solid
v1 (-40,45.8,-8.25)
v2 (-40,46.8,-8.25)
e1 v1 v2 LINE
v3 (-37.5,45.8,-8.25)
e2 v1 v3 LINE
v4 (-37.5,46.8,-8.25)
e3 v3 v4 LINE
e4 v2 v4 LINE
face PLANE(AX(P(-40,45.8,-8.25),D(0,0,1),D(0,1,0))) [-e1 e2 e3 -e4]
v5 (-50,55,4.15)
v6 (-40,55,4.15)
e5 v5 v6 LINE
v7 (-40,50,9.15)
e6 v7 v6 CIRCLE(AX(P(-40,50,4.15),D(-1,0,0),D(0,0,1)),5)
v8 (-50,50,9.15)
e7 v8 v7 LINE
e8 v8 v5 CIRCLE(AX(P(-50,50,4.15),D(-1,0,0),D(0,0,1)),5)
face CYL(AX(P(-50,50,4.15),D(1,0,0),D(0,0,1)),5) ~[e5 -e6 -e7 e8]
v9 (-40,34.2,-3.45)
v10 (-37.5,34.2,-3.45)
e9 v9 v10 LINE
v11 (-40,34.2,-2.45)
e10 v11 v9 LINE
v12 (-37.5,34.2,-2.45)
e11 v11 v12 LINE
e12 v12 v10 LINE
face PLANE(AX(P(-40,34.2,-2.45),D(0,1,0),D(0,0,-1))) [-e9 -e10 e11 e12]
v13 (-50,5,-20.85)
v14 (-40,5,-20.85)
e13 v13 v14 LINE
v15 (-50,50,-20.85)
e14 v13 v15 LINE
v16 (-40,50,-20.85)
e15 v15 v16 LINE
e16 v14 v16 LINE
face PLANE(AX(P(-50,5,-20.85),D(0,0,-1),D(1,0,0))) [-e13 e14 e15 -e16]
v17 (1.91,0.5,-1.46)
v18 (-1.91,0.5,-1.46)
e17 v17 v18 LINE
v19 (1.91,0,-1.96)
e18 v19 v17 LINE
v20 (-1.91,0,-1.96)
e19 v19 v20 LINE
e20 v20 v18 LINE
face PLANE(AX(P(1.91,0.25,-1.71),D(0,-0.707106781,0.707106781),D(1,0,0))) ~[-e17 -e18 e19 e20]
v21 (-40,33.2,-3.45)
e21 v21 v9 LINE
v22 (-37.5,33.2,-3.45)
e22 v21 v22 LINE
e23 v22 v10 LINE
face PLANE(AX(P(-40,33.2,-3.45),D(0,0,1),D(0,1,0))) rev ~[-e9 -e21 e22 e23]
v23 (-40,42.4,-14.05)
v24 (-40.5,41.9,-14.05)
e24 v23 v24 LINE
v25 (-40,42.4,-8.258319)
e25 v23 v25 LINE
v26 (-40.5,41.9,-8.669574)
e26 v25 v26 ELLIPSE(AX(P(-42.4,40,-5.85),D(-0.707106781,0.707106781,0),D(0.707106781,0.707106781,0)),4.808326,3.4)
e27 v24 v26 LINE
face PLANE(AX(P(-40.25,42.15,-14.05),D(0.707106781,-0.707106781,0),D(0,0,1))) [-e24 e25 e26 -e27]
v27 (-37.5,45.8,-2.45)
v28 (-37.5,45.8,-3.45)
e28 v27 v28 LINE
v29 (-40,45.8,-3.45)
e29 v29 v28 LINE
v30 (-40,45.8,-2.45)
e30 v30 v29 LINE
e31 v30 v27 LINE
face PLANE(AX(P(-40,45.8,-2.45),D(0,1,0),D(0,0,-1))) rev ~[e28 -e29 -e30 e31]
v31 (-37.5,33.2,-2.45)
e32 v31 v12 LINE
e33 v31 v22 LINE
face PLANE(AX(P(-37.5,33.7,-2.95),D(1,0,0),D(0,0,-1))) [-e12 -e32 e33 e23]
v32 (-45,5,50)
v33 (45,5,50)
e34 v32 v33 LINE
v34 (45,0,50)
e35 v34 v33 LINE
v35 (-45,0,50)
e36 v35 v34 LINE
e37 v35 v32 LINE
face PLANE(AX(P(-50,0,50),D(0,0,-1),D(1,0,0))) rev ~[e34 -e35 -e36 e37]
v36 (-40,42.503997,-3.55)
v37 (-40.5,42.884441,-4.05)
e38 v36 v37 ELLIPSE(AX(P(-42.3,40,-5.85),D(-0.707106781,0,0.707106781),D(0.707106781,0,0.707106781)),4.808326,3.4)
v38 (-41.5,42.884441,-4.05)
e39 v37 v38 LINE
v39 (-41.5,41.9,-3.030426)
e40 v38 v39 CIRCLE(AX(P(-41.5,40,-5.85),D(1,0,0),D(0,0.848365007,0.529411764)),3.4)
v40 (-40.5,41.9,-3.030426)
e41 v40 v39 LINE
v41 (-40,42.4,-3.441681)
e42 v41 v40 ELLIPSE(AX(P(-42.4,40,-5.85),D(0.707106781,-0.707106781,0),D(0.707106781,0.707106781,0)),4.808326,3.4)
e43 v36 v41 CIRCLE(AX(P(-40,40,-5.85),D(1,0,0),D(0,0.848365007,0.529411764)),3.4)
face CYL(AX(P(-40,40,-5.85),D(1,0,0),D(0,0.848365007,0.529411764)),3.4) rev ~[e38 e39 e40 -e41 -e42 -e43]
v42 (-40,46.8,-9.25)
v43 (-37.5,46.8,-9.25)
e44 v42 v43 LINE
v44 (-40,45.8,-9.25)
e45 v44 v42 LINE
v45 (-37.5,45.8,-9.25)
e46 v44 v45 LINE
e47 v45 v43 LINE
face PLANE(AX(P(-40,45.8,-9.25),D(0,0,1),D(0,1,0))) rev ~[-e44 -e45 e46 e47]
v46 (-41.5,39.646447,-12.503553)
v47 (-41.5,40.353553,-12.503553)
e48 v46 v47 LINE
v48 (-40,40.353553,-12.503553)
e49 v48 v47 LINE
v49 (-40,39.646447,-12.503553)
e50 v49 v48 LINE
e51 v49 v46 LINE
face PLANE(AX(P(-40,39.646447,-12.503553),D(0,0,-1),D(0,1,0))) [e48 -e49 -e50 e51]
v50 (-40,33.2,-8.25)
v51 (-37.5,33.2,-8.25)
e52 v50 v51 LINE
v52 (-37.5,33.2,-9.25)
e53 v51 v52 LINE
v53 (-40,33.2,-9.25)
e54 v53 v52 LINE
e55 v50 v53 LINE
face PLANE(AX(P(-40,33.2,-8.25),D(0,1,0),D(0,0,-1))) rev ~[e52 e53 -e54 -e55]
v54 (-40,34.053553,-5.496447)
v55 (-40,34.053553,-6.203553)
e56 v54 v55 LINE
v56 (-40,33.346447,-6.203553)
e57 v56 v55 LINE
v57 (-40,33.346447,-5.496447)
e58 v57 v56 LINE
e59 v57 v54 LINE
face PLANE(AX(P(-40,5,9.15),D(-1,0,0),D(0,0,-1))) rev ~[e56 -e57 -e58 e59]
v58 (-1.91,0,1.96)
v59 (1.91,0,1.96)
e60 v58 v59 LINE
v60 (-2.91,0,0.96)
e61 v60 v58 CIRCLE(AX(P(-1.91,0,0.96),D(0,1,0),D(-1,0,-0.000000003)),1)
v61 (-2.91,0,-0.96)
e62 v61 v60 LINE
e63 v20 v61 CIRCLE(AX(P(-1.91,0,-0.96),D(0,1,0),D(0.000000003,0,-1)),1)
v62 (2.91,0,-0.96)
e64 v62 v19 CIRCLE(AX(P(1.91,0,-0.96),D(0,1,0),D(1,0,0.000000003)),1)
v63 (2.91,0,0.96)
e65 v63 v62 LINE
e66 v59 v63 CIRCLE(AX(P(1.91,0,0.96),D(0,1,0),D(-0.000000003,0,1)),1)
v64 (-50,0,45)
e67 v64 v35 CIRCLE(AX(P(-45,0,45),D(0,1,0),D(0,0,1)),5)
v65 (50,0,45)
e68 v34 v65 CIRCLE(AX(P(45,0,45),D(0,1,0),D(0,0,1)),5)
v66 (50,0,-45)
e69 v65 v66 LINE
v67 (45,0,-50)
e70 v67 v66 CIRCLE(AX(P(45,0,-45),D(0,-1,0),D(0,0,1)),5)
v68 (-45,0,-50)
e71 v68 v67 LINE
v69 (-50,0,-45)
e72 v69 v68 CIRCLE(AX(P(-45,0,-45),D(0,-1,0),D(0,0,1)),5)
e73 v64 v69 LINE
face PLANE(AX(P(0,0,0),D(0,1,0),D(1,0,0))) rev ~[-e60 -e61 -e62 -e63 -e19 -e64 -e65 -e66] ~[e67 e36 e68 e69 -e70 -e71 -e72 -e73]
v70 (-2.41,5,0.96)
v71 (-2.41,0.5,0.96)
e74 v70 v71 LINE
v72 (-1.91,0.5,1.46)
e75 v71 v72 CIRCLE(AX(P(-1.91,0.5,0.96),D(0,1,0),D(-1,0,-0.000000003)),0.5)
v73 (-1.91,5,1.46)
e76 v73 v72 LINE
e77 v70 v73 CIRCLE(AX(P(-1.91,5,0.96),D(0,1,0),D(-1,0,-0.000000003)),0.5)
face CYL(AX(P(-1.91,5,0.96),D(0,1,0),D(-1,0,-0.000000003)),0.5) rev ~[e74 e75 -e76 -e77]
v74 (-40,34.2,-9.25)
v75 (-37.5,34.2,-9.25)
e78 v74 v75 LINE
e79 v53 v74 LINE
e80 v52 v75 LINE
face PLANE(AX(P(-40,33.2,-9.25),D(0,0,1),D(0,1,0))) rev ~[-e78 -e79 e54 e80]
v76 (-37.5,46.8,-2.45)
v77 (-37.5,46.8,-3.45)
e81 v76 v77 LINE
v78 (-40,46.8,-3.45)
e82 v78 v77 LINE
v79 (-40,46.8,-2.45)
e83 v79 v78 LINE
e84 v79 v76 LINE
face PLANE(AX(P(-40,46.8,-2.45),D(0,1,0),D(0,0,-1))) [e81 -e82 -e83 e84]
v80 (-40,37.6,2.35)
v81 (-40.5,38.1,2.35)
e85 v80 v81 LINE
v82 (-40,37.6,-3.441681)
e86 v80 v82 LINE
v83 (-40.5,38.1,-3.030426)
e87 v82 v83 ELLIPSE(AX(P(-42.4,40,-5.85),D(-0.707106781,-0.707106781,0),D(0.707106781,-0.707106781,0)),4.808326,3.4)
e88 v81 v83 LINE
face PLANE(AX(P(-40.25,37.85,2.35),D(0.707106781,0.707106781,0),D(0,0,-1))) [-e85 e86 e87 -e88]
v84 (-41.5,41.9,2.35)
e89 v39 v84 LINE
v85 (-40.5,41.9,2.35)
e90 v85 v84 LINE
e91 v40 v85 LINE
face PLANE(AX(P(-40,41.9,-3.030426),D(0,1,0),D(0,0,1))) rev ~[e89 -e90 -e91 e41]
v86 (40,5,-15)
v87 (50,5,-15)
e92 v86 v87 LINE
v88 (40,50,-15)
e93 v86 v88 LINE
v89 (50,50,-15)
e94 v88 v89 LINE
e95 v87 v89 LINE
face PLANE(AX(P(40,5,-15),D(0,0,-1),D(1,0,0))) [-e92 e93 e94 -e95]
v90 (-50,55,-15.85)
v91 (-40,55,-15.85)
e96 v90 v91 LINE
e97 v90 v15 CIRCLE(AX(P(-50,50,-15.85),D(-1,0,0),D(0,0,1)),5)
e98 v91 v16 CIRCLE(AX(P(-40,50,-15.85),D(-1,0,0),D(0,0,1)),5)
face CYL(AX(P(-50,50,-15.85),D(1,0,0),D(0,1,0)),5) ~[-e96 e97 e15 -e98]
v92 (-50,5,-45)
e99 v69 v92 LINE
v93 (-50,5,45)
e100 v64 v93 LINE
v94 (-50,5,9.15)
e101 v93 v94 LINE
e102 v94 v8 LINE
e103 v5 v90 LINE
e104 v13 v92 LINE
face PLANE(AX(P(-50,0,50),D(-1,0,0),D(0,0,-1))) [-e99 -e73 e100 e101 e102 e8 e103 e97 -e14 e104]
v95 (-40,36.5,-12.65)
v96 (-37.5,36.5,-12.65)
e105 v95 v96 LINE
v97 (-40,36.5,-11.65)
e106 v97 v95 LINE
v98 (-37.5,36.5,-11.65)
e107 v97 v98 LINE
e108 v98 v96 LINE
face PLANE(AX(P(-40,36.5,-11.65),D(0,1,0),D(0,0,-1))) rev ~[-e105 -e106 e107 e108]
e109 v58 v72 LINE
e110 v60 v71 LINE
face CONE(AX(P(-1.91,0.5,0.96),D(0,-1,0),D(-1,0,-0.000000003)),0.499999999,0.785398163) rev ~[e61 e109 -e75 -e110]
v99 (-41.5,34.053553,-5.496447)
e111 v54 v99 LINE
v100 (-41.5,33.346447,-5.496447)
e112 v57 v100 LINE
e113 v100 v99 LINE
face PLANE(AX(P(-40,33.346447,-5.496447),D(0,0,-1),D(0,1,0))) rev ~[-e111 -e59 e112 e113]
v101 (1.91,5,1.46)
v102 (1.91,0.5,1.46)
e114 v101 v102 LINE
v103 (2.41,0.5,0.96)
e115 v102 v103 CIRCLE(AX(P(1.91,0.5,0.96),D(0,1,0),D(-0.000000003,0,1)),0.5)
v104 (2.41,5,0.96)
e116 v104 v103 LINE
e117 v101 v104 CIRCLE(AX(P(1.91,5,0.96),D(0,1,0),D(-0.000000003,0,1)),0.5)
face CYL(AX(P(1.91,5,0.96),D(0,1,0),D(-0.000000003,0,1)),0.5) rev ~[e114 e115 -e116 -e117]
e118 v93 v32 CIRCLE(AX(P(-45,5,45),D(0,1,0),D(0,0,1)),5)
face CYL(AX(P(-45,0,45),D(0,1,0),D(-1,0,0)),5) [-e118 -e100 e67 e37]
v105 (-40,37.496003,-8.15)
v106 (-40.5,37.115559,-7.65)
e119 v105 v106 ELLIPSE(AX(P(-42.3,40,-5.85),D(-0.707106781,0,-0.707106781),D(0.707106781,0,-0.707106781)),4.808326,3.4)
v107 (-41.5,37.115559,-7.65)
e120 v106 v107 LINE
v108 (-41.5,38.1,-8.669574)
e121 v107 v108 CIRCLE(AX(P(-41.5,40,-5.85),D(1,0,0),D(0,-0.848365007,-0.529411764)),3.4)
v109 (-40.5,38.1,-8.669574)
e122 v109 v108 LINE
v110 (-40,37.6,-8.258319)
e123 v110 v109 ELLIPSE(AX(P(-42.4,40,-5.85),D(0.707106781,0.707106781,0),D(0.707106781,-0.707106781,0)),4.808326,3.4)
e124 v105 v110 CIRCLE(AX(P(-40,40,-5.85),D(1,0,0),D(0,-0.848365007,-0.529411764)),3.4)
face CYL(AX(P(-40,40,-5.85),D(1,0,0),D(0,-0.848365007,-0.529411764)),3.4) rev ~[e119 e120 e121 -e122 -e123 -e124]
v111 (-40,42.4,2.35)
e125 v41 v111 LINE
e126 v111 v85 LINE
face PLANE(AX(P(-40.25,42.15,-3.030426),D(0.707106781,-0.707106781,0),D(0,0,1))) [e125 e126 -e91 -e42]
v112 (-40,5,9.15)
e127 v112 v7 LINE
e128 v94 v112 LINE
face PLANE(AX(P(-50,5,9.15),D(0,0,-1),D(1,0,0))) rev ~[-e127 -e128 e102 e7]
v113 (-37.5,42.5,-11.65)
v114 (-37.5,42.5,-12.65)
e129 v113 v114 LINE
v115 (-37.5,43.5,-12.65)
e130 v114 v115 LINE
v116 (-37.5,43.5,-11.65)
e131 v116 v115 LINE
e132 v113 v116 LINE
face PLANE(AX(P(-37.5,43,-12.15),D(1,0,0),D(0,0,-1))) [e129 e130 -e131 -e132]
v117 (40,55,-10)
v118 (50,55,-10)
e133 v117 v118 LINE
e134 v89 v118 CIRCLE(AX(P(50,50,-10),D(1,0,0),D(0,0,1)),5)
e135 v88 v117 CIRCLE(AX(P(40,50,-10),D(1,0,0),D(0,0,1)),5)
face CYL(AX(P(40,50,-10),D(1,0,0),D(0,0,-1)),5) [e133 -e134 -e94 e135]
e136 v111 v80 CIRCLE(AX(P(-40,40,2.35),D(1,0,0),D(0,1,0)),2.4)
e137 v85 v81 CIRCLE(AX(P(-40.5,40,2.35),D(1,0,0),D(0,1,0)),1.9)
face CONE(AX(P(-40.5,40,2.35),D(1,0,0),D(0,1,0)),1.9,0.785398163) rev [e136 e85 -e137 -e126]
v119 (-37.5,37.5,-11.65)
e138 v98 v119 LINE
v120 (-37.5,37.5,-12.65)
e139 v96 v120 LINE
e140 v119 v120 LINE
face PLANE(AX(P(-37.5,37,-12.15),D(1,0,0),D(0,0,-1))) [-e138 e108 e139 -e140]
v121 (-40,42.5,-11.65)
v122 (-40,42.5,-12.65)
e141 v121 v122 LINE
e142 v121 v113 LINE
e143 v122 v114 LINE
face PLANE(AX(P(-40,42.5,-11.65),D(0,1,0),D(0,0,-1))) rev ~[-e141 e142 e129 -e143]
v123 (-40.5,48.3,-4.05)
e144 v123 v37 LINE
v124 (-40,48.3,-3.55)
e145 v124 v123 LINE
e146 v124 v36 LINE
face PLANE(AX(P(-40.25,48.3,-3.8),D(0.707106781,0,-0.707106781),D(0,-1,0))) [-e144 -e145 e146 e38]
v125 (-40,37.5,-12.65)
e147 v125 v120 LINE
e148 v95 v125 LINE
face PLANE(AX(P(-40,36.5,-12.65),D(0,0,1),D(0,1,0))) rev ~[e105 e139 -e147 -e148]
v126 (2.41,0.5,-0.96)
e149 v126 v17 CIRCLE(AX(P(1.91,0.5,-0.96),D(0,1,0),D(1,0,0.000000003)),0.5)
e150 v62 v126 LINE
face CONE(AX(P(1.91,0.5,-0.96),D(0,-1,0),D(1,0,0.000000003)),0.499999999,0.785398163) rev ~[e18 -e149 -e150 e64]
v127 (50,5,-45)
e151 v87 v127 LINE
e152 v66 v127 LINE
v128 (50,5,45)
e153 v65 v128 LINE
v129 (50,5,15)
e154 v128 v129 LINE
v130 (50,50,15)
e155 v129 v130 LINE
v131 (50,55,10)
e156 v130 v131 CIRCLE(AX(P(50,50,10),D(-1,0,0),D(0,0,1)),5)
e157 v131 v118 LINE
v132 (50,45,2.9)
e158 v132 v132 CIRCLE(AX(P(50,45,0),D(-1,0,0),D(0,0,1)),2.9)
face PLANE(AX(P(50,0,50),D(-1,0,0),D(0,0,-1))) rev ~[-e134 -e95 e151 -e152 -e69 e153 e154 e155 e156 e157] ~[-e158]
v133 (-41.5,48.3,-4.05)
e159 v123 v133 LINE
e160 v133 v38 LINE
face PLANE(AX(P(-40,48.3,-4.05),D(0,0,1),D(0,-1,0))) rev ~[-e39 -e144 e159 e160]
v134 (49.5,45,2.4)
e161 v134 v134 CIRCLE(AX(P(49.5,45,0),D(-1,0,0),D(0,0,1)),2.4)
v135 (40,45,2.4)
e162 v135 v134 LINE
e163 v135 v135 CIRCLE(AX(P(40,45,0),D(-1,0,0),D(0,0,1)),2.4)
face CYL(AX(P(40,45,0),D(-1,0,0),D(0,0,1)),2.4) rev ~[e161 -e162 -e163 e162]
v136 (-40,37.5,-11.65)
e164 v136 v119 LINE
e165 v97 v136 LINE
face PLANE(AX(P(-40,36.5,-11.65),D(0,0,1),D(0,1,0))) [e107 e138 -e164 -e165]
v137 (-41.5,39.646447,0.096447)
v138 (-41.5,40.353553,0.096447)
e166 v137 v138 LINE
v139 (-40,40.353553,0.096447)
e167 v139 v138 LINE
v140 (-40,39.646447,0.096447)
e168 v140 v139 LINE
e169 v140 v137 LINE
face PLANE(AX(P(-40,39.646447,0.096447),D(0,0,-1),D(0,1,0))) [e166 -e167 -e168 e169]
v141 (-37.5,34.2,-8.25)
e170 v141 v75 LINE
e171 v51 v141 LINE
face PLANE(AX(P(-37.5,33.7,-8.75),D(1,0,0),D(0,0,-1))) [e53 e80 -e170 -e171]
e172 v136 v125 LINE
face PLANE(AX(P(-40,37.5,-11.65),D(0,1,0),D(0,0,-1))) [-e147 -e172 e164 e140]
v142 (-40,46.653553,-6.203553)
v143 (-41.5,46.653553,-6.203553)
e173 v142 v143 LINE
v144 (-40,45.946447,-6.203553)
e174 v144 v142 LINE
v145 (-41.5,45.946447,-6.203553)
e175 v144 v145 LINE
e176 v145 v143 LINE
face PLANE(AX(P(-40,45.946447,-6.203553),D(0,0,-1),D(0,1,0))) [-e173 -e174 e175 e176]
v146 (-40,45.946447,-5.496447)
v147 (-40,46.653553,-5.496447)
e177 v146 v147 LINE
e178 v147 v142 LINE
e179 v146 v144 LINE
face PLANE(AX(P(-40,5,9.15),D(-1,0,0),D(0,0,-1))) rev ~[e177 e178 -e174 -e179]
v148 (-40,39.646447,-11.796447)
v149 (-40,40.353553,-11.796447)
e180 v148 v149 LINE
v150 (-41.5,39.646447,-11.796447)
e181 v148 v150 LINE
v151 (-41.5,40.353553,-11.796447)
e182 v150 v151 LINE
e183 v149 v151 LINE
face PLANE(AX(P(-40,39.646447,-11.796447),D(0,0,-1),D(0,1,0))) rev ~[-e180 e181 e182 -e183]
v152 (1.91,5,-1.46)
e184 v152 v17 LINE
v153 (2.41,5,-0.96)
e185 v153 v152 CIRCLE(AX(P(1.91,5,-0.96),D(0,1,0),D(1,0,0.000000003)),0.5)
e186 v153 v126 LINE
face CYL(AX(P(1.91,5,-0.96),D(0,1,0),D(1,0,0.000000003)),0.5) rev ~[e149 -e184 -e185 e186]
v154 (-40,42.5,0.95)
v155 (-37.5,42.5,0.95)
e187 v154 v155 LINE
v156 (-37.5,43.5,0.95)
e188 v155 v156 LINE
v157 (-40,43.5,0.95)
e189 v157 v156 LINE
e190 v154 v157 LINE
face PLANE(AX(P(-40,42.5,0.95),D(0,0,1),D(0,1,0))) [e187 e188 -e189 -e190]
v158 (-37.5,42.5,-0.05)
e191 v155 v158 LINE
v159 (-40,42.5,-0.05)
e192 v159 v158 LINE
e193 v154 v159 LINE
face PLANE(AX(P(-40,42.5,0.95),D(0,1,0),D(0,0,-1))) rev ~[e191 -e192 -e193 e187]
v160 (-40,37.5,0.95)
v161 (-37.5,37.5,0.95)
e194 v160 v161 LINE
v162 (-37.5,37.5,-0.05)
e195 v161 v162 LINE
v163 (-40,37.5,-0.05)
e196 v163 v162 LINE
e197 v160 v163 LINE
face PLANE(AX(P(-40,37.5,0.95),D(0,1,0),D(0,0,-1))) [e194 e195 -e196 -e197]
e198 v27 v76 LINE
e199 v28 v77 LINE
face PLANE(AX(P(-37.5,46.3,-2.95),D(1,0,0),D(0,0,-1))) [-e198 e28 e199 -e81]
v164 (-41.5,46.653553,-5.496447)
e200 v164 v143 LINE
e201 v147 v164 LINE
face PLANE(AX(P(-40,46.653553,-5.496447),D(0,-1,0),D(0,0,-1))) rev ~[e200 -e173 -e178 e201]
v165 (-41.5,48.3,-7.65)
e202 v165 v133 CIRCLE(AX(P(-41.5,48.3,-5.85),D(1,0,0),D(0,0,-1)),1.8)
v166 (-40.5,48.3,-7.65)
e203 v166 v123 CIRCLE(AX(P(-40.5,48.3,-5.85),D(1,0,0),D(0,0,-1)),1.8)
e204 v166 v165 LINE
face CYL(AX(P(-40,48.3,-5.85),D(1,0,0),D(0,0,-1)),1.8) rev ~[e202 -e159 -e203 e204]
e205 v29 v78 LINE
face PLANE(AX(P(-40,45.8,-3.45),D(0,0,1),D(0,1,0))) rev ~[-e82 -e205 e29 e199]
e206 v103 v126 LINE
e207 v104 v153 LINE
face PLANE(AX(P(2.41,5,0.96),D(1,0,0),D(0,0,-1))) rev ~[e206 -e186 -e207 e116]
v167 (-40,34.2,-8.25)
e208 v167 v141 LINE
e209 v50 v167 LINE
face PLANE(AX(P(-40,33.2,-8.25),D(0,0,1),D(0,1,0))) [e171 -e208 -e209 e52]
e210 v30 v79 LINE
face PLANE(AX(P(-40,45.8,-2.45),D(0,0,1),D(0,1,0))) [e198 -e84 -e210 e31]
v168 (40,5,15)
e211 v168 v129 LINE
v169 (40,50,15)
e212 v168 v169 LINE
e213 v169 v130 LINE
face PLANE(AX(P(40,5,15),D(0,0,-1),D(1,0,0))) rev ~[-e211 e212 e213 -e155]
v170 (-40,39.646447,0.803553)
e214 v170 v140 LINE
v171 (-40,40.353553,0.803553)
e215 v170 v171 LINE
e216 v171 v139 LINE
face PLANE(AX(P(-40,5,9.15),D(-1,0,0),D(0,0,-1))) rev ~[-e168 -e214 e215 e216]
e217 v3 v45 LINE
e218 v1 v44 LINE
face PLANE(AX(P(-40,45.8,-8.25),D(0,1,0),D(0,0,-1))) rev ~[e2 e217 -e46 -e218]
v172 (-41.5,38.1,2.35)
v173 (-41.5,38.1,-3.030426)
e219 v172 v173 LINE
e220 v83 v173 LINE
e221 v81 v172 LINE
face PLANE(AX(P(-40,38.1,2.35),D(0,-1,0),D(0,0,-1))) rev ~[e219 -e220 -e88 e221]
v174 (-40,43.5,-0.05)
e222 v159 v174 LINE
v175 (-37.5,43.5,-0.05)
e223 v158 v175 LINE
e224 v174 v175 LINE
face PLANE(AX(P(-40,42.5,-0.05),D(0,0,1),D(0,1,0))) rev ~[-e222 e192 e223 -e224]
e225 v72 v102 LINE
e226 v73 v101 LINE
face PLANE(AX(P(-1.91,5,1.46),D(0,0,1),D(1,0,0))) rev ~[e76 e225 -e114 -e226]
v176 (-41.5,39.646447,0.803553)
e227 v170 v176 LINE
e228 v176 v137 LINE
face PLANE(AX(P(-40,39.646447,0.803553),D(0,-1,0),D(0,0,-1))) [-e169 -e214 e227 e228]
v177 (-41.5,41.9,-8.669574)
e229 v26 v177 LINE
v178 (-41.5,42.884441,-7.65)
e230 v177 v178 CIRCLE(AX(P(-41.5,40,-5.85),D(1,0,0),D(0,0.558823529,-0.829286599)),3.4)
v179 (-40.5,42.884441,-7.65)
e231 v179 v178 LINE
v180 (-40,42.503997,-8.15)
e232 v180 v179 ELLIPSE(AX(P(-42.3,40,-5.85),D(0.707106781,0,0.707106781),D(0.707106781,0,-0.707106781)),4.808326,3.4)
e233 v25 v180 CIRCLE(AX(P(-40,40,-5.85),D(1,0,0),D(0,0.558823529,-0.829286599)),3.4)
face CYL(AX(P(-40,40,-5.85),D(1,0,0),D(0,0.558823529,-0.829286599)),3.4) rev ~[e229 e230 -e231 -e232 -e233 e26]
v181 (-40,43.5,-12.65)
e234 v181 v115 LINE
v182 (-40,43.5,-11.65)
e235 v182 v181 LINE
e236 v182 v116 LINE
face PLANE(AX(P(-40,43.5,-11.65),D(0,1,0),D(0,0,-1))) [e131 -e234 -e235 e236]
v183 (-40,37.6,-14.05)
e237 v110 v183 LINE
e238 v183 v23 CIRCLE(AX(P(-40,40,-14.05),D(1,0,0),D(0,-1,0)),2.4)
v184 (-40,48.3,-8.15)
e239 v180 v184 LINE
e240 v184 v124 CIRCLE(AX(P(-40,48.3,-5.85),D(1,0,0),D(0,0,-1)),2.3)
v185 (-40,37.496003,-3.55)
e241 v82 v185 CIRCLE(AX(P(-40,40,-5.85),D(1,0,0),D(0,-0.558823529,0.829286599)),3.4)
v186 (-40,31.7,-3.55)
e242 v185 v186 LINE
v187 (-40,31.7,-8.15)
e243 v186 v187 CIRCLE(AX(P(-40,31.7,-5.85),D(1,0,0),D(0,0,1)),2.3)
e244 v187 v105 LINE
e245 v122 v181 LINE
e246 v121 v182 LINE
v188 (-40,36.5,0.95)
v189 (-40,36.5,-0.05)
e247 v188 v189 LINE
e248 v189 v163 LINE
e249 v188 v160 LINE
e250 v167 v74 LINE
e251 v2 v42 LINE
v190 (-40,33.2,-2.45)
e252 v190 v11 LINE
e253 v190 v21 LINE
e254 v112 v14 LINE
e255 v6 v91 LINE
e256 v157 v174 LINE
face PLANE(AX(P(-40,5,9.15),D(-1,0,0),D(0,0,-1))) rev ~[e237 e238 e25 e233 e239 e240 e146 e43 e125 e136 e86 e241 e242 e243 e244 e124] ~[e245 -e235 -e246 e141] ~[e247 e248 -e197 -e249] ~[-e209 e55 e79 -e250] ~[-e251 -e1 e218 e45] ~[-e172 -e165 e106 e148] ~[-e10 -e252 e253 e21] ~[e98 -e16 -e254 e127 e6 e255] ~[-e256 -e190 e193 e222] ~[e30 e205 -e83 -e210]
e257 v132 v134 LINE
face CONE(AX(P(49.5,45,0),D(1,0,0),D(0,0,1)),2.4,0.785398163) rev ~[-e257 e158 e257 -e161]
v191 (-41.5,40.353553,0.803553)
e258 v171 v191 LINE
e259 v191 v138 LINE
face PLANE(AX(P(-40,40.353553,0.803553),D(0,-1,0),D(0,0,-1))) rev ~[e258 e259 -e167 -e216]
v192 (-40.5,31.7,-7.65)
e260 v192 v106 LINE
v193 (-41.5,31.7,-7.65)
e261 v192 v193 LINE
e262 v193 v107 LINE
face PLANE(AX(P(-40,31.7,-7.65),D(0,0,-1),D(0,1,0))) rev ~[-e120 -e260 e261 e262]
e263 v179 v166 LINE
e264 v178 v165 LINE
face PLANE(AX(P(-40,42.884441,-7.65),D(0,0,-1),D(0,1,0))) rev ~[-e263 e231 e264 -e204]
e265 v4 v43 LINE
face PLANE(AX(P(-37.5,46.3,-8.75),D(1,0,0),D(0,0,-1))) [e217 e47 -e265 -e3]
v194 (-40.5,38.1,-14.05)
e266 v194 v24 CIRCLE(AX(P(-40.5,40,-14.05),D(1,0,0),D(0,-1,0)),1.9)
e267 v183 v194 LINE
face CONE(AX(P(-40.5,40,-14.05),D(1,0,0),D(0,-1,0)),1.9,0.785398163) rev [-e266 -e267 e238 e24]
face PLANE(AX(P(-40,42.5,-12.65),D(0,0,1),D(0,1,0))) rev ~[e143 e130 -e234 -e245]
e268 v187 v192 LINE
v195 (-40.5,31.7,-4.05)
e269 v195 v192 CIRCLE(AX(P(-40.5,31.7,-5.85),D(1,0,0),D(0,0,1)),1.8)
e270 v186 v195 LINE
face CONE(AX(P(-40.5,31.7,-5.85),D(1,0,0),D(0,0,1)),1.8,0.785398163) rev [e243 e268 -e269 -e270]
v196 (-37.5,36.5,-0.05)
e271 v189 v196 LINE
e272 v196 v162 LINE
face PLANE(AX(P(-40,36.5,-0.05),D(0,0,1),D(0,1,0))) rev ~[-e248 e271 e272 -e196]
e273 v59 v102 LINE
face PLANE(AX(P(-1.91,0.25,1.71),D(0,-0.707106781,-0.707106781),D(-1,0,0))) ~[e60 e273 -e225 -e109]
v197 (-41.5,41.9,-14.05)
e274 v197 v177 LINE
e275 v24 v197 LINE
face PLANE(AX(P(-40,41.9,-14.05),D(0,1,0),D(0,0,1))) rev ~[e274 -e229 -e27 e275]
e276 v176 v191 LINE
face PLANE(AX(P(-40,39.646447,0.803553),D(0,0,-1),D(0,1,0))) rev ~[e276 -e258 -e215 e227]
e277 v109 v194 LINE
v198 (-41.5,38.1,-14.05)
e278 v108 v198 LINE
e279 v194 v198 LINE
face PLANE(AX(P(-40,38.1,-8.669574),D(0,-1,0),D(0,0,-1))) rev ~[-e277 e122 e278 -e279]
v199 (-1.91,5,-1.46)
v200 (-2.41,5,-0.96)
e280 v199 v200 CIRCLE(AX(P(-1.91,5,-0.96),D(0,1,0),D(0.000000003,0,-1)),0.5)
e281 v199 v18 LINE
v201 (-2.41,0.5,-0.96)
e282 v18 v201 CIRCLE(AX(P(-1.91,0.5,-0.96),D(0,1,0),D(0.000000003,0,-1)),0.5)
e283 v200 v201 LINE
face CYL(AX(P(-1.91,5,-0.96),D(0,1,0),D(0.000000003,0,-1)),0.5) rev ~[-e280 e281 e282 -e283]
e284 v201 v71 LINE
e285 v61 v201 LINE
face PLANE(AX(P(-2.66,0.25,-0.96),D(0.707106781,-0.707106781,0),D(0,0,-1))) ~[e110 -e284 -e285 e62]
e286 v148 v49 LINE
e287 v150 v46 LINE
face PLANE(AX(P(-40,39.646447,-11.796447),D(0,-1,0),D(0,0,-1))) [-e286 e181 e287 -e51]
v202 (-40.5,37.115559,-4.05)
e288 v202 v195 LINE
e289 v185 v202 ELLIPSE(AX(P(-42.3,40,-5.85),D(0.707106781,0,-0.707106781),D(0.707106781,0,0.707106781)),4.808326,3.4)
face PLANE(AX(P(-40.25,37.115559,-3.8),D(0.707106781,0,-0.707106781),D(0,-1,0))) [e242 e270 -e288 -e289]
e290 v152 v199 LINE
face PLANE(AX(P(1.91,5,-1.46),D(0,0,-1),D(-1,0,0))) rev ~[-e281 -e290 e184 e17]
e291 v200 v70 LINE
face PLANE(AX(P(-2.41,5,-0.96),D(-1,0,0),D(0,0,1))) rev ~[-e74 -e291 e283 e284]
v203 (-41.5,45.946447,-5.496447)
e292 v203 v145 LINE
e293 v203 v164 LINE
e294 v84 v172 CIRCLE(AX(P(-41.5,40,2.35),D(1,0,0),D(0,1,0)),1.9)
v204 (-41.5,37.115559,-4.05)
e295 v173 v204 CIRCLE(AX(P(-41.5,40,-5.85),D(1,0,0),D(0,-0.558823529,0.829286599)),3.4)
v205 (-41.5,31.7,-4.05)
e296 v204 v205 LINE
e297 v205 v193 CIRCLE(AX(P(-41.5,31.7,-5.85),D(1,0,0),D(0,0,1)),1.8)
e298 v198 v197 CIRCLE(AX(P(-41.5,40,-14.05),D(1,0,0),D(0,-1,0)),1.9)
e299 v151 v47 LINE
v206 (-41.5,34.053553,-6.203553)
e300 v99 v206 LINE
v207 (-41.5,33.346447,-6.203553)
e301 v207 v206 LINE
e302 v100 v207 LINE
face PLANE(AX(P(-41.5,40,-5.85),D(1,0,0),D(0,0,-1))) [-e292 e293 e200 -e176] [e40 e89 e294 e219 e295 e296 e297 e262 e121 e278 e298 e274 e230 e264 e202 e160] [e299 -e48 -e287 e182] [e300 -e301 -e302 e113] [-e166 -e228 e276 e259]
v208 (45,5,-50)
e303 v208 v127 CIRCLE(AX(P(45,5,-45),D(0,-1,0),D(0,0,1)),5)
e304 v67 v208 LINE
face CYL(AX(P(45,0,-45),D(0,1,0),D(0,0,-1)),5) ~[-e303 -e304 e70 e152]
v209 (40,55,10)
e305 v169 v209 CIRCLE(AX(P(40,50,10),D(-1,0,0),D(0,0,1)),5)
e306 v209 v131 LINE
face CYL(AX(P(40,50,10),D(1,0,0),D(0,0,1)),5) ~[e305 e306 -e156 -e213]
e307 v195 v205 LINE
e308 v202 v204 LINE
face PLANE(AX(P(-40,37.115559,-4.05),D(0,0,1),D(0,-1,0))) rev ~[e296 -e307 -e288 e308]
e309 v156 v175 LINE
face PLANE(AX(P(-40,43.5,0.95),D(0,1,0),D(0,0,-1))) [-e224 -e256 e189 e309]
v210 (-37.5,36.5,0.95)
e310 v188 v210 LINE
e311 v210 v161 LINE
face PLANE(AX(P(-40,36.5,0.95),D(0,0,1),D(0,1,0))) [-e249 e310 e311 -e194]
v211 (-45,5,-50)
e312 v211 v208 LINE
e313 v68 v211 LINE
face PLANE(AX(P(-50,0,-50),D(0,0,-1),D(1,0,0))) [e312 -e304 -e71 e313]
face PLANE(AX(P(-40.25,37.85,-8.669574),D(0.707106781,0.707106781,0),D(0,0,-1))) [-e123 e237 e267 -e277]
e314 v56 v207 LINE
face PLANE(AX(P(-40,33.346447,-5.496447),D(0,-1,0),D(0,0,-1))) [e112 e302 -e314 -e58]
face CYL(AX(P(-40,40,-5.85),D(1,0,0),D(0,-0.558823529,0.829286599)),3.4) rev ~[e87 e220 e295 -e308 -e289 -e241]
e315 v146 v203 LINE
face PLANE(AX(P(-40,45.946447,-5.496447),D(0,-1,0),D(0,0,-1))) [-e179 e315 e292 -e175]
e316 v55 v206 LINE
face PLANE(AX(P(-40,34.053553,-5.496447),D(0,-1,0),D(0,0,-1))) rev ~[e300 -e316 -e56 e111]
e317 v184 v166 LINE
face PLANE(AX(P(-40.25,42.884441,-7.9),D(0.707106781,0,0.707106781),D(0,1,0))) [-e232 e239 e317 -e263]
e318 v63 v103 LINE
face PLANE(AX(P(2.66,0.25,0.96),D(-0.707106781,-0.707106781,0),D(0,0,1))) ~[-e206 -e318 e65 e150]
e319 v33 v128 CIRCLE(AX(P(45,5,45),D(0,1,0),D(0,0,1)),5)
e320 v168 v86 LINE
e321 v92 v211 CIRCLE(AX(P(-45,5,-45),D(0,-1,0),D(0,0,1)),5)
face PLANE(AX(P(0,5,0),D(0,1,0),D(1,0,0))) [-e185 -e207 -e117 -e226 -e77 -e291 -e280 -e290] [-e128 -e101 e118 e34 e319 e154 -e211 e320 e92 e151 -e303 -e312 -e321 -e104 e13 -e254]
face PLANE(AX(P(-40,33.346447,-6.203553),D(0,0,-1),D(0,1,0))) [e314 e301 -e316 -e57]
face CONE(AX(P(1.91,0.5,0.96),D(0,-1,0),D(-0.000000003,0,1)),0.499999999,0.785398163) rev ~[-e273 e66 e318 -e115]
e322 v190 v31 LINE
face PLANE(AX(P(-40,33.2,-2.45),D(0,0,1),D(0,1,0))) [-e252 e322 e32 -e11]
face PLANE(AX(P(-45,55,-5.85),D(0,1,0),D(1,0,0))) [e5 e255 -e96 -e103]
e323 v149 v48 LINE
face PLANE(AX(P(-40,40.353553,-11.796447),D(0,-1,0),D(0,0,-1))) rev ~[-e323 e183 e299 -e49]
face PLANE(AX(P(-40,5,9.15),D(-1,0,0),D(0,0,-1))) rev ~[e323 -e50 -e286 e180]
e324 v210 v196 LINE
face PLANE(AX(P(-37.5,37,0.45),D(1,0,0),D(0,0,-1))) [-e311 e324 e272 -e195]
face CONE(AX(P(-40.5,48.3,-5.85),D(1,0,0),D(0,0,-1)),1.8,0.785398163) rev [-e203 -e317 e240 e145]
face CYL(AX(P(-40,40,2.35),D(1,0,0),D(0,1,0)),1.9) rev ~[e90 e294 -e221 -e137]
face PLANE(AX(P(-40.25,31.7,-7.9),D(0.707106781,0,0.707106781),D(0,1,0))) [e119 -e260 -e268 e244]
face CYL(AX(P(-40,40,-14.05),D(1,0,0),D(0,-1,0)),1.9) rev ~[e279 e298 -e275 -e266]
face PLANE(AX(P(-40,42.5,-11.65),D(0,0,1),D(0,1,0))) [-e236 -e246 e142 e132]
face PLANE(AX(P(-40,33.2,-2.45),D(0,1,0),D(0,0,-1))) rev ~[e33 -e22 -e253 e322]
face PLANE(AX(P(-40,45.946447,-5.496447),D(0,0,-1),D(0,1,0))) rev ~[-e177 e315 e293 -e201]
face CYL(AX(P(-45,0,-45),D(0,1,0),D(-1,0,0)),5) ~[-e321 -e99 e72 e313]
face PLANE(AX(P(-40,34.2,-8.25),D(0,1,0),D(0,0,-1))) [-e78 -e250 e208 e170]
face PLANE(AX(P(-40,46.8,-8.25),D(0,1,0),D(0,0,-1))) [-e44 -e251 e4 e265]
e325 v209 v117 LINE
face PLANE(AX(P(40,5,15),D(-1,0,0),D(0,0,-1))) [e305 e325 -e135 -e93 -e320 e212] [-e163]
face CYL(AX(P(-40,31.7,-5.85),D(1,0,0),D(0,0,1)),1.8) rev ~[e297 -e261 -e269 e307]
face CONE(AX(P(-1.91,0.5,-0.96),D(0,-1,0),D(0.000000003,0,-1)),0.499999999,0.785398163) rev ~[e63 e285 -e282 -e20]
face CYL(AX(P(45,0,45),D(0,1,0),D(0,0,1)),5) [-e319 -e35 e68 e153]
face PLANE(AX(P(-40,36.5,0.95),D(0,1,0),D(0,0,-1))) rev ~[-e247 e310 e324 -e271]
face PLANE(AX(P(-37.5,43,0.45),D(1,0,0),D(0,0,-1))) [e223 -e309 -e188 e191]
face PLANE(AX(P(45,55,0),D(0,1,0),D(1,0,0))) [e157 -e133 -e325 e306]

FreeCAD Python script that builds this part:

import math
import FreeCAD as App
import Part
import Sketcher

V = App.Vector
Q = App.Units.Quantity


def edges_at(feature, points):
    """Names of the edges that pass closest to the given points."""
    edges = feature.Shape.Edges
    near = lambda p: min(range(len(edges)), key=lambda i: edges[i].distToShape(Part.Vertex(*p))[0])
    return sorted({f"Edge{near(p) + 1}" for p in points})


def add_polygon(sketch, points):
    """Adds a closed chain of lines whose ends are joined by coincident constraints."""
    first, n = sketch.GeometryCount, len(points)
    for a, b in zip(points, points[1:] + points[:1]):
        sketch.addGeometry(Part.LineSegment(App.Vector(*a, 0), App.Vector(*b, 0)), False)
    for i in range(n):
        sketch.addConstraint(Sketcher.Constraint("Coincident", first + i, 2, first + (i + 1) % n, 1))

doc = App.newDocument("Part")
body = doc.addObject("PartDesign::Body", "Body")

# Sketch on XZ plane
sketch1 = body.newObject("Sketcher::SketchObject", "Sketch")
sketch1.AttachmentSupport = (doc.getObject("XZ_Plane"), [""])
sketch1.MapMode = "FlatFace"
add_polygon(sketch1, [(-50, -50), (-50, 50), (50, 50), (50, -50)])  # lines 0-3
sketch1.addConstraint(Sketcher.Constraint("Vertical", 0))
sketch1.addConstraint(Sketcher.Constraint("Horizontal", 1))
sketch1.addConstraint(Sketcher.Constraint("Vertical", 2))
sketch1.addConstraint(Sketcher.Constraint("Horizontal", 3))
sketch1.addConstraint(Sketcher.Constraint("Symmetric", 0, 2, 2, 2, -1, 1))
sketch1.addConstraint(Sketcher.Constraint("Equal", 3, 0))
sketch1.addConstraint(Sketcher.Constraint("DistanceX", 1, 1, 1, 2, Q("100 mm")))
pad1 = body.newObject("PartDesign::Pad", "Pad")
pad1.Profile = sketch1
pad1.Length = 5
pad1.Reversed = True

# Sketch on XZ plane
sketch2 = body.newObject("Sketcher::SketchObject", "Sketch001")
sketch2.AttachmentSupport = (doc.getObject("XZ_Plane"), [""])
sketch2.MapMode = "FlatFace"
sketch2.AttachmentOffset = App.Placement(V(0, 0, -5), App.Rotation())
add_polygon(sketch2, [(-50, -21), (-50, 9), (-40, 9), (-40, -21)])  # lines 0-3
add_polygon(sketch2, [(40, -15), (40, 15), (50, 15), (50, -15)])  # lines 4-7
sketch2.addConstraint(Sketcher.Constraint("Vertical", 0))
sketch2.addConstraint(Sketcher.Constraint("Horizontal", 1))
sketch2.addConstraint(Sketcher.Constraint("Vertical", 2))
sketch2.addConstraint(Sketcher.Constraint("Horizontal", 3))
sketch2.addConstraint(Sketcher.Constraint("Vertical", 4))
sketch2.addConstraint(Sketcher.Constraint("Horizontal", 5))
sketch2.addConstraint(Sketcher.Constraint("Vertical", 6))
sketch2.addConstraint(Sketcher.Constraint("Horizontal", 7))
sketch2.addConstraint(Sketcher.Constraint("Equal", 3, 5))
sketch2.addConstraint(Sketcher.Constraint("Equal", 2, 4))
sketch2.addConstraint(Sketcher.Constraint("DistanceX", 1, 1, 1, 2, Q("10 mm")))
sketch2.addConstraint(Sketcher.Constraint("DistanceY", 0, 1, 0, 2, Q("30 mm")))
sketch2.addConstraint(Sketcher.Constraint("DistanceX", 0, 2, -1, 1, Q("50 mm")))
sketch2.addConstraint(Sketcher.Constraint("DistanceX", -1, 1, 4, 2, Q("40 mm")))
sketch2.addConstraint(Sketcher.Constraint("DistanceY", -1, 1, 4, 2, Q("15 mm")))
sketch2.addConstraint(Sketcher.Constraint("DistanceY", -1, 1, 0, 2, Q("9.15 mm")))
pad2 = body.newObject("PartDesign::Pad", "Pad001")
pad2.Profile = sketch2
pad2.Length = 50
pad2.Reversed = True

# Sketch on XZ plane
sketch3 = body.newObject("Sketcher::SketchObject", "Sketch002")
sketch3.AttachmentSupport = (doc.getObject("XZ_Plane"), [""])
sketch3.MapMode = "FlatFace"
sketch3.AttachmentOffset = App.Placement(V(0, 0, -5), App.Rotation())
sketch3.addGeometry(Part.LineSegment(V(-1.91, 1.46, 0), V(1.91, 1.46, 0)), False)
sketch3.addGeometry(Part.ArcOfCircle(Part.Circle(V(1.91, 0.96, 0), V(0, 0, 1), 0.5), math.radians(0), math.radians(90)), False)
sketch3.addGeometry(Part.LineSegment(V(2.41, 0.96, 0), V(2.41, -0.96, 0)), False)
sketch3.addGeometry(Part.ArcOfCircle(Part.Circle(V(1.91, -0.96, 0), V(0, 0, 1), 0.5), math.radians(-90), math.radians(0)), False)
sketch3.addGeometry(Part.LineSegment(V(1.91, -1.46, 0), V(-1.91, -1.46, 0)), False)
sketch3.addGeometry(Part.ArcOfCircle(Part.Circle(V(-1.91, -0.96, 0), V(0, 0, 1), 0.5), math.radians(180), math.radians(270)), False)
sketch3.addGeometry(Part.LineSegment(V(-2.41, -0.96, 0), V(-2.41, 0.96, 0)), False)
sketch3.addGeometry(Part.ArcOfCircle(Part.Circle(V(-1.91, 0.96, 0), V(0, 0, 1), 0.5), math.radians(90), math.radians(180)), False)
sketch3.addConstraint(Sketcher.Constraint("Tangent", 0, 2, 1, 2))
sketch3.addConstraint(Sketcher.Constraint("Tangent", 1, 1, 2, 1))
sketch3.addConstraint(Sketcher.Constraint("Tangent", 2, 2, 3, 2))
sketch3.addConstraint(Sketcher.Constraint("Tangent", 3, 1, 4, 1))
sketch3.addConstraint(Sketcher.Constraint("Tangent", 4, 2, 5, 2))
sketch3.addConstraint(Sketcher.Constraint("Tangent", 5, 1, 6, 1))
sketch3.addConstraint(Sketcher.Constraint("Tangent", 6, 2, 7, 2))
sketch3.addConstraint(Sketcher.Constraint("Tangent", 7, 1, 0, 1))
sketch3.addConstraint(Sketcher.Constraint("Horizontal", 0))
sketch3.addConstraint(Sketcher.Constraint("Vertical", 2))
sketch3.addConstraint(Sketcher.Constraint("Horizontal", 4))
sketch3.addConstraint(Sketcher.Constraint("Vertical", 6))
sketch3.addConstraint(Sketcher.Constraint("Equal", 1, 3))
sketch3.addConstraint(Sketcher.Constraint("Equal", 3, 5))
sketch3.addConstraint(Sketcher.Constraint("Equal", 5, 7))
sketch3.addConstraint(Sketcher.Constraint("Symmetric", 1, 3, 5, 3, -1, 1))
sketch3.addConstraint(Sketcher.Constraint("Radius", 1, Q("0.5 mm")))
sketch3.addConstraint(Sketcher.Constraint("DistanceX", 0, 1, 0, 2, Q("3.82 mm")))
sketch3.addConstraint(Sketcher.Constraint("DistanceY", 2, 2, 2, 1, Q("1.92 mm")))
pocket1 = body.newObject("PartDesign::Pocket", "Pocket")
pocket1.Profile = sketch3
pocket1.Type = "ThroughAll"
pocket1.Reversed = True
doc.recompute()

fillet = body.newObject("PartDesign::Fillet", "Fillet")
fillet.Base = (pocket1, edges_at(pocket1, [
    (50, 2.5, 50),
    (-50, 2.5, 50),
    (-50, 2.5, -50),
    (50, 2.5, -50),
]))
fillet.Radius = 5
doc.recompute()

fillet2 = body.newObject("PartDesign::Fillet", "Fillet001")
fillet2.Base = (fillet, edges_at(fillet, [
    (-45, 55, 9.15),
    (-45, 55, -20.85),
    (45, 55, -15),
    (45, 55, 15),
]))
fillet2.Radius = 5

# Sketch on YZ plane
sketch4 = body.newObject("Sketcher::SketchObject", "Sketch003")
sketch4.AttachmentSupport = (doc.getObject("YZ_Plane"), [""])
sketch4.MapMode = "FlatFace"
sketch4.AttachmentOffset = App.Placement(V(0, 0, -40), App.Rotation())
sketch4.addGeometry(Part.LineSegment(V(31.7, -7.7, 0), V(37.1, -7.7, 0)), False)  # 0
sketch4.addGeometry(Part.ArcOfCircle(Part.Circle(V(40, -5.9, 0), V(0, 0, 1), 3.4), math.radians(-148), math.radians(-124)), False)  # 1
sketch4.addGeometry(Part.LineSegment(V(38.1, -8.7, 0), V(38.1, -14.1, 0)), False)  # 2
sketch4.addGeometry(Part.ArcOfCircle(Part.Circle(V(40, -14.1, 0), V(0, 0, 1), 1.9), math.radians(180), math.radians(360)), False)  # 3
sketch4.addGeometry(Part.LineSegment(V(41.9, -14.1, 0), V(41.9, -8.7, 0)), False)  # 4
sketch4.addGeometry(Part.ArcOfCircle(Part.Circle(V(40, -5.9, 0), V(0, 0, 1), 3.4), math.radians(-56), math.radians(-32)), False)  # 5
sketch4.addGeometry(Part.LineSegment(V(42.9, -7.7, 0), V(48.3, -7.7, 0)), False)  # 6
sketch4.addGeometry(Part.ArcOfCircle(Part.Circle(V(48.3, -5.8, 0), V(0, 0, 1), 1.8), math.radians(-90), math.radians(90)), False)  # 7
sketch4.addGeometry(Part.LineSegment(V(48.3, -4, 0), V(42.9, -4, 0)), False)  # 8
sketch4.addGeometry(Part.ArcOfCircle(Part.Circle(V(40, -5.8, 0), V(0, 0, 1), 3.4), math.radians(32), math.radians(56)), False)  # 9
sketch4.addGeometry(Part.LineSegment(V(41.9, -3, 0), V(41.9, 2.4, 0)), False)  # 10
sketch4.addGeometry(Part.ArcOfCircle(Part.Circle(V(40, 2.4, 0), V(0, 0, 1), 1.9), math.radians(0), math.radians(180)), False)  # 11
sketch4.addGeometry(Part.LineSegment(V(38.1, 2.4, 0), V(38.1, -3, 0)), False)  # 12
sketch4.addGeometry(Part.ArcOfCircle(Part.Circle(V(40, -5.8, 0), V(0, 0, 1), 3.4), math.radians(124), math.radians(148)), False)  # 13
sketch4.addGeometry(Part.LineSegment(V(37.1, -4, 0), V(31.7, -4, 0)), False)  # 14
sketch4.addGeometry(Part.ArcOfCircle(Part.Circle(V(31.7, -5.8, 0), V(0, 0, 1), 1.8), math.radians(90), math.radians(270)), False)  # 15
add_polygon(sketch4, [(33.3, -6.2), (33.3, -5.5), (34.1, -5.5), (34.1, -6.2)])  # lines 16-19
add_polygon(sketch4, [(39.6, 0.1), (39.6, 0.8), (40.4, 0.8), (40.4, 0.1)])  # lines 20-23
add_polygon(sketch4, [(45.9, -6.2), (45.9, -5.5), (46.7, -5.5), (46.7, -6.2)])  # lines 24-27
add_polygon(sketch4, [(39.6, -12.5), (39.6, -11.8), (40.4, -11.8), (40.4, -12.5)])  # lines 28-31
sketch4.addConstraint(Sketcher.Constraint("Coincident", 0, 2, 1, 1))
sketch4.addConstraint(Sketcher.Constraint("Coincident", 1, 2, 2, 1))
sketch4.addConstraint(Sketcher.Constraint("Tangent", 2, 2, 3, 1))
sketch4.addConstraint(Sketcher.Constraint("Tangent", 3, 2, 4, 1))
sketch4.addConstraint(Sketcher.Constraint("Coincident", 4, 2, 5, 1))
sketch4.addConstraint(Sketcher.Constraint("Coincident", 5, 2, 6, 1))
sketch4.addConstraint(Sketcher.Constraint("Tangent", 6, 2, 7, 1))
sketch4.addConstraint(Sketcher.Constraint("Tangent", 7, 2, 8, 1))
sketch4.addConstraint(Sketcher.Constraint("Coincident", 8, 2, 9, 1))
sketch4.addConstraint(Sketcher.Constraint("Coincident", 9, 2, 10, 1))
sketch4.addConstraint(Sketcher.Constraint("Tangent", 10, 2, 11, 1))
sketch4.addConstraint(Sketcher.Constraint("Tangent", 11, 2, 12, 1))
sketch4.addConstraint(Sketcher.Constraint("Coincident", 12, 2, 13, 1))
sketch4.addConstraint(Sketcher.Constraint("Coincident", 13, 2, 14, 1))
sketch4.addConstraint(Sketcher.Constraint("Tangent", 14, 2, 15, 1))
sketch4.addConstraint(Sketcher.Constraint("Tangent", 15, 2, 0, 1))
sketch4.addConstraint(Sketcher.Constraint("Horizontal", 0))
sketch4.addConstraint(Sketcher.Constraint("Vertical", 2))
sketch4.addConstraint(Sketcher.Constraint("Vertical", 4))
sketch4.addConstraint(Sketcher.Constraint("Horizontal", 6))
sketch4.addConstraint(Sketcher.Constraint("Horizontal", 8))
sketch4.addConstraint(Sketcher.Constraint("Vertical", 10))
sketch4.addConstraint(Sketcher.Constraint("Vertical", 12))
sketch4.addConstraint(Sketcher.Constraint("Horizontal", 14))
sketch4.addConstraint(Sketcher.Constraint("Vertical", 16))
sketch4.addConstraint(Sketcher.Constraint("Horizontal", 17))
sketch4.addConstraint(Sketcher.Constraint("Vertical", 18))
sketch4.addConstraint(Sketcher.Constraint("Horizontal", 19))
sketch4.addConstraint(Sketcher.Constraint("Vertical", 20))
sketch4.addConstraint(Sketcher.Constraint("Horizontal", 21))
sketch4.addConstraint(Sketcher.Constraint("Vertical", 22))
sketch4.addConstraint(Sketcher.Constraint("Horizontal", 23))
sketch4.addConstraint(Sketcher.Constraint("Vertical", 24))
sketch4.addConstraint(Sketcher.Constraint("Horizontal", 25))
sketch4.addConstraint(Sketcher.Constraint("Vertical", 26))
sketch4.addConstraint(Sketcher.Constraint("Horizontal", 27))
sketch4.addConstraint(Sketcher.Constraint("Vertical", 28))
sketch4.addConstraint(Sketcher.Constraint("Horizontal", 29))
sketch4.addConstraint(Sketcher.Constraint("Vertical", 30))
sketch4.addConstraint(Sketcher.Constraint("Horizontal", 31))
sketch4.addConstraint(Sketcher.Constraint("Coincident", 5, 3, 1, 3))
sketch4.addConstraint(Sketcher.Constraint("Coincident", 9, 3, 1, 3))
sketch4.addConstraint(Sketcher.Constraint("Coincident", 13, 3, 1, 3))
sketch4.addConstraint(Sketcher.Constraint("Equal", 1, 5))
sketch4.addConstraint(Sketcher.Constraint("Equal", 5, 9))
sketch4.addConstraint(Sketcher.Constraint("Equal", 3, 11))
sketch4.addConstraint(Sketcher.Constraint("Equal", 9, 13))
sketch4.addConstraint(Sketcher.Constraint("Equal", 7, 15))
sketch4.addConstraint(Sketcher.Constraint("Horizontal", 5, 3, 7, 3))
sketch4.addConstraint(Sketcher.Constraint("Horizontal", 13, 3, 15, 3))
sketch4.addConstraint(Sketcher.Constraint("Horizontal", 1, 2, 4, 2))
sketch4.addConstraint(Sketcher.Constraint("Horizontal", 9, 2, 12, 2))
sketch4.addConstraint(Sketcher.Constraint("Horizontal", 17, 2, 24, 2))
sketch4.addConstraint(Sketcher.Constraint("Horizontal", 19, 2, 26, 2))
sketch4.addConstraint(Sketcher.Constraint("Vertical", 23, 2, 28, 2))
sketch4.addConstraint(Sketcher.Constraint("Vertical", 22, 2, 29, 2))
sketch4.addConstraint(Sketcher.Constraint("Equal", 0, 6))
sketch4.addConstraint(Sketcher.Constraint("Equal", 19, 21))
sketch4.addConstraint(Sketcher.Constraint("Equal", 23, 25))
sketch4.addConstraint(Sketcher.Constraint("Equal", 4, 10))
sketch4.addConstraint(Sketcher.Constraint("Equal", 31, 16))
sketch4.addConstraint(Sketcher.Constraint("Equal", 18, 20))
sketch4.addConstraint(Sketcher.Constraint("Equal", 26, 28))
sketch4.addConstraint(Sketcher.Constraint("Radius", 1, Q("3.4 mm")))
sketch4.addConstraint(Sketcher.Constraint("Radius", 3, Q("1.9 mm")))
sketch4.addConstraint(Sketcher.Constraint("Radius", 7, Q("1.8 mm")))
sketch4.addConstraint(Sketcher.Constraint("DistanceX", -1, 1, 1, 3, Q("40 mm")))
sketch4.addConstraint(Sketcher.Constraint("DistanceX", -1, 1, 7, 3, Q("48.3 mm")))
sketch4.addConstraint(Sketcher.Constraint("DistanceY", 3, 3, 1, 3, Q("8.2 mm")))
sketch4.addConstraint(Sketcher.Constraint("DistanceY", 1, 3, -1, 1, Q("5.85 mm")))
sketch4.addConstraint(Sketcher.Constraint("DistanceX", 17, 1, 17, 2, Q("0.707107 mm")))
sketch4.addConstraint(Sketcher.Constraint("DistanceY", 12, 2, 20, 2, Q("3.833979 mm")))
sketch4.addConstraint(Sketcher.Constraint("DistanceX", -1, 1, 16, 2, Q("33.346447 mm")))
sketch4.addConstraint(Sketcher.Constraint("DistanceY", 16, 2, -1, 1, Q("5.496447 mm")))
sketch4.addConstraint(Sketcher.Constraint("DistanceX", -1, 1, 20, 2, Q("39.646447 mm")))
sketch4.addConstraint(Sketcher.Constraint("DistanceX", -1, 1, 24, 2, Q("45.946447 mm")))
sketch4.addConstraint(Sketcher.Constraint("DistanceY", 28, 2, -1, 1, Q("11.796447 mm")))
pocket2 = body.newObject("PartDesign::Pocket", "Pocket001")
pocket2.Profile = sketch4
pocket2.Length = 1.5

# Sketch on YZ plane
sketch5 = body.newObject("Sketcher::SketchObject", "Sketch004")
sketch5.AttachmentSupport = (doc.getObject("YZ_Plane"), [""])
sketch5.MapMode = "FlatFace"
sketch5.AttachmentOffset = App.Placement(V(0, 0, 40), App.Rotation())
sketch5.addGeometry(Part.Circle(V(45, 0, 0), V(0, 0, 1), 2.4), False)
sketch5.addConstraint(Sketcher.Constraint("PointOnObject", 0, 3, -1))
sketch5.addConstraint(Sketcher.Constraint("Diameter", 0, Q("4.8 mm")))
sketch5.addConstraint(Sketcher.Constraint("DistanceX", -1, 1, 0, 3, Q("45 mm")))
pocket3 = body.newObject("PartDesign::Pocket", "Pocket002")
pocket3.Profile = sketch5
pocket3.Type = "ThroughAll"
pocket3.Reversed = True
doc.recompute()

chamfer = body.newObject("PartDesign::Chamfer", "Chamfer")
chamfer.Base = (pocket3, edges_at(pocket3, [
    (2.264, 0, 1.314),
    (0, 0, 1.46),
    (-2.264, 0, 1.314),
    (-2.41, 0, 0),
    (-2.264, 0, -1.314),
    (0, 0, -1.46),
    (2.264, 0, -1.314),
    (2.41, 0, 0),
]))
chamfer.Size = 0.5
doc.recompute()

chamfer2 = body.newObject("PartDesign::Chamfer", "Chamfer001")
chamfer2.Base = (chamfer, edges_at(chamfer, [
    (-40, 45.592, -4.05),
    (-40, 41.9, -11.36),
    (-40, 34.408, -4.05),
    (-40, 41.9, -0.34),
    (-40, 40, 4.25),
    (-40, 38.1, -0.34),
    (-40, 29.9, -5.85),
    (-40, 34.408, -7.65),
    (-40, 38.1, -11.36),
    (-40, 40, -15.95),
    (-40, 45.592, -7.65),
    (-40, 50.1, -5.85),
]))
chamfer2.Size = 0.5
doc.recompute()

chamfer3 = body.newObject("PartDesign::Chamfer", "Chamfer002")
chamfer3.Base = (chamfer2, edges_at(chamfer2, [(50, 45, -2.4)]))
chamfer3.Size = 0.5

# Sketch on YZ plane
sketch6 = body.newObject("Sketcher::SketchObject", "Sketch005")
sketch6.AttachmentSupport = (doc.getObject("YZ_Plane"), [""])
sketch6.MapMode = "FlatFace"
sketch6.AttachmentOffset = App.Placement(V(0, 0, -40), App.Rotation())
add_polygon(sketch6, [(46.8, -2.5), (45.8, -2.5), (45.8, -3.5), (46.8, -3.5)])  # lines 0-3
add_polygon(sketch6, [(46.8, -8.2), (45.8, -8.2), (45.8, -9.2), (46.8, -9.2)])  # lines 4-7
add_polygon(sketch6, [(43.5, -11.7), (42.5, -11.7), (42.5, -12.7), (43.5, -12.7)])  # lines 8-11
add_polygon(sketch6, [(37.5, -11.7), (36.5, -11.7), (36.5, -12.7), (37.5, -12.7)])  # lines 12-15
add_polygon(sketch6, [(34.2, -8.2), (33.2, -8.2), (33.2, -9.2), (34.2, -9.2)])  # lines 16-19
add_polygon(sketch6, [(34.2, -2.5), (33.2, -2.5), (33.2, -3.5), (34.2, -3.5)])  # lines 20-23
add_polygon(sketch6, [(37.5, 0.9), (36.5, 0.9), (36.5, -0.1), (37.5, -0.1)])  # lines 24-27
add_polygon(sketch6, [(43.5, 0.9), (42.5, 0.9), (42.5, -0.1), (43.5, -0.1)])  # lines 28-31
sketch6.addConstraint(Sketcher.Constraint("Horizontal", 0))
sketch6.addConstraint(Sketcher.Constraint("Vertical", 1))
sketch6.addConstraint(Sketcher.Constraint("Horizontal", 2))
sketch6.addConstraint(Sketcher.Constraint("Vertical", 3))
sketch6.addConstraint(Sketcher.Constraint("Horizontal", 4))
sketch6.addConstraint(Sketcher.Constraint("Vertical", 5))
sketch6.addConstraint(Sketcher.Constraint("Horizontal", 6))
sketch6.addConstraint(Sketcher.Constraint("Vertical", 7))
sketch6.addConstraint(Sketcher.Constraint("Horizontal", 8))
sketch6.addConstraint(Sketcher.Constraint("Vertical", 9))
sketch6.addConstraint(Sketcher.Constraint("Horizontal", 10))
sketch6.addConstraint(Sketcher.Constraint("Vertical", 11))
sketch6.addConstraint(Sketcher.Constraint("Horizontal", 12))
sketch6.addConstraint(Sketcher.Constraint("Vertical", 13))
sketch6.addConstraint(Sketcher.Constraint("Horizontal", 14))
sketch6.addConstraint(Sketcher.Constraint("Vertical", 15))
sketch6.addConstraint(Sketcher.Constraint("Horizontal", 16))
sketch6.addConstraint(Sketcher.Constraint("Vertical", 17))
sketch6.addConstraint(Sketcher.Constraint("Horizontal", 18))
sketch6.addConstraint(Sketcher.Constraint("Vertical", 19))
sketch6.addConstraint(Sketcher.Constraint("Horizontal", 20))
sketch6.addConstraint(Sketcher.Constraint("Vertical", 21))
sketch6.addConstraint(Sketcher.Constraint("Horizontal", 22))
sketch6.addConstraint(Sketcher.Constraint("Vertical", 23))
sketch6.addConstraint(Sketcher.Constraint("Horizontal", 24))
sketch6.addConstraint(Sketcher.Constraint("Vertical", 25))
sketch6.addConstraint(Sketcher.Constraint("Horizontal", 26))
sketch6.addConstraint(Sketcher.Constraint("Vertical", 27))
sketch6.addConstraint(Sketcher.Constraint("Horizontal", 28))
sketch6.addConstraint(Sketcher.Constraint("Vertical", 29))
sketch6.addConstraint(Sketcher.Constraint("Horizontal", 30))
sketch6.addConstraint(Sketcher.Constraint("Vertical", 31))
sketch6.addConstraint(Sketcher.Constraint("Horizontal", 11, 2, 12, 2))
sketch6.addConstraint(Sketcher.Constraint("Horizontal", 10, 2, 13, 2))
sketch6.addConstraint(Sketcher.Constraint("Horizontal", 7, 2, 16, 2))
sketch6.addConstraint(Sketcher.Constraint("Horizontal", 6, 2, 17, 2))
sketch6.addConstraint(Sketcher.Constraint("Horizontal", 3, 2, 20, 2))
sketch6.addConstraint(Sketcher.Constraint("Horizontal", 2, 2, 21, 2))
sketch6.addConstraint(Sketcher.Constraint("Horizontal", 27, 2, 28, 2))
sketch6.addConstraint(Sketcher.Constraint("Horizontal", 26, 2, 29, 2))
sketch6.addConstraint(Sketcher.Constraint("Vertical", 1, 2, 4, 2))
sketch6.addConstraint(Sketcher.Constraint("Vertical", 3, 2, 6, 2))
sketch6.addConstraint(Sketcher.Constraint("Vertical", 17, 2, 20, 2))
sketch6.addConstraint(Sketcher.Constraint("Vertical", 19, 2, 22, 2))
sketch6.addConstraint(Sketcher.Constraint("Vertical", 13, 2, 24, 2))
sketch6.addConstraint(Sketcher.Constraint("Vertical", 15, 2, 26, 2))
sketch6.addConstraint(Sketcher.Constraint("Vertical", 9, 2, 28, 2))
sketch6.addConstraint(Sketcher.Constraint("Vertical", 11, 2, 30, 2))
sketch6.addConstraint(Sketcher.Constraint("Equal", 6, 8))
sketch6.addConstraint(Sketcher.Constraint("Equal", 10, 12))
sketch6.addConstraint(Sketcher.Constraint("Equal", 14, 16))
sketch6.addConstraint(Sketcher.Constraint("Equal", 30, 1))
sketch6.addConstraint(Sketcher.Constraint("Equal", 3, 5))
sketch6.addConstraint(Sketcher.Constraint("Equal", 7, 9))
sketch6.addConstraint(Sketcher.Constraint("Equal", 23, 25))
sketch6.addConstraint(Sketcher.Constraint("DistanceX", 0, 2, 0, 1, Q("1 mm")))
sketch6.addConstraint(Sketcher.Constraint("DistanceX", 12, 2, 8, 2, Q("6 mm")))
sketch6.addConstraint(Sketcher.Constraint("DistanceX", -1, 1, 0, 2, Q("45.8 mm")))
sketch6.addConstraint(Sketcher.Constraint("DistanceX", -1, 1, 8, 2, Q("42.5 mm")))
sketch6.addConstraint(Sketcher.Constraint("DistanceX", -1, 1, 16, 2, Q("33.2 mm")))
sketch6.addConstraint(Sketcher.Constraint("DistanceY", 4, 2, 1, 2, Q("4.8 mm")))
sketch6.addConstraint(Sketcher.Constraint("DistanceY", 8, 2, 5, 2, Q("2.4 mm")))
sketch6.addConstraint(Sketcher.Constraint("DistanceY", 23, 2, 24, 2, Q("3.4 mm")))
sketch6.addConstraint(Sketcher.Constraint("DistanceY", 0, 2, -1, 1, Q("2.45 mm")))
pad3 = body.newObject("PartDesign::Pad", "Pad002")
pad3.Profile = sketch6
pad3.Length = 2.5

doc.recompute()
